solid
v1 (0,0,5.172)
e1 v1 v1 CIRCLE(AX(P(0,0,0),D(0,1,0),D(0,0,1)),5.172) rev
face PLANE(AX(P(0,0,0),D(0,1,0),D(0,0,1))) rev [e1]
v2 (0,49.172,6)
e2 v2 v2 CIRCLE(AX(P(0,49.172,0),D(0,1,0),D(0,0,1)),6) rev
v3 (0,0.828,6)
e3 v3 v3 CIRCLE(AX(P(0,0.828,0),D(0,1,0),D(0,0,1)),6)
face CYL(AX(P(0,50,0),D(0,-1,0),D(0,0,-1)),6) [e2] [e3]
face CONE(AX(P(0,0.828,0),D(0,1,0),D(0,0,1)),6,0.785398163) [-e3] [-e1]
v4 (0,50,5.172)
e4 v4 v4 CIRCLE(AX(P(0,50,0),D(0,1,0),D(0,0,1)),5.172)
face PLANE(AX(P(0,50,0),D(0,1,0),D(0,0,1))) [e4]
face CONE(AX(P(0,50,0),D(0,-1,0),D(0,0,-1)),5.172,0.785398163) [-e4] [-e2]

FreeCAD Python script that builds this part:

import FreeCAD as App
import Part
import Sketcher
Q = App.Units.Quantity


def edges_at(feature, points):
    """Names of the edges that pass closest to the given points."""
    edges = feature.Shape.Edges
    near = lambda p: min(range(len(edges)), key=lambda i: edges[i].distToShape(Part.Vertex(*p))[0])
    return sorted({f"Edge{near(p) + 1}" for p in points})

doc = App.newDocument("Part")
params = doc.addObject("Spreadsheet::Sheet", "Params")
for row, (alias, value) in enumerate([
    ("sketch1_diameter", "12 mm"),
    ("pad1_length", "50 mm"),
    ("chamfer_size", "0.828 mm"),
], start=1):
    params.set(f"A{row}", alias)
    params.set(f"B{row}", "=" + value)
    params.setAlias(f"B{row}", alias)

body = doc.addObject("PartDesign::Body", "Body")

sketch1 = body.newObject("Sketcher::SketchObject", "Sketch")
sketch1.AttachmentSupport = (doc.getObject("XZ_Plane"), [""])
sketch1.MapMode = "FlatFace"
sketch1.addGeometry(Part.Circle(App.Vector(0, 0, 0), App.Vector(0, 0, 1), 6), False)
sketch1.addConstraint(Sketcher.Constraint("Coincident", 0, 3, -1, 1))
sketch1.addConstraint(Sketcher.Constraint("Diameter", 0, Q("12 mm")))
sketch1.setExpression("Constraints[1]", "Params.sketch1_diameter")
pad1 = body.newObject("PartDesign::Pad", "Pad")
pad1.Profile = sketch1
pad1.setExpression("Length", "Params.pad1_length")
pad1.Reversed = True
doc.recompute()

chamfer = body.newObject("PartDesign::Chamfer", "Chamfer")
chamfer.Base = (pad1, edges_at(pad1, [(0, 0, -6), (0, 50, -6)]))
chamfer.setExpression("Size", "Params.chamfer_size")

doc.recompute()
